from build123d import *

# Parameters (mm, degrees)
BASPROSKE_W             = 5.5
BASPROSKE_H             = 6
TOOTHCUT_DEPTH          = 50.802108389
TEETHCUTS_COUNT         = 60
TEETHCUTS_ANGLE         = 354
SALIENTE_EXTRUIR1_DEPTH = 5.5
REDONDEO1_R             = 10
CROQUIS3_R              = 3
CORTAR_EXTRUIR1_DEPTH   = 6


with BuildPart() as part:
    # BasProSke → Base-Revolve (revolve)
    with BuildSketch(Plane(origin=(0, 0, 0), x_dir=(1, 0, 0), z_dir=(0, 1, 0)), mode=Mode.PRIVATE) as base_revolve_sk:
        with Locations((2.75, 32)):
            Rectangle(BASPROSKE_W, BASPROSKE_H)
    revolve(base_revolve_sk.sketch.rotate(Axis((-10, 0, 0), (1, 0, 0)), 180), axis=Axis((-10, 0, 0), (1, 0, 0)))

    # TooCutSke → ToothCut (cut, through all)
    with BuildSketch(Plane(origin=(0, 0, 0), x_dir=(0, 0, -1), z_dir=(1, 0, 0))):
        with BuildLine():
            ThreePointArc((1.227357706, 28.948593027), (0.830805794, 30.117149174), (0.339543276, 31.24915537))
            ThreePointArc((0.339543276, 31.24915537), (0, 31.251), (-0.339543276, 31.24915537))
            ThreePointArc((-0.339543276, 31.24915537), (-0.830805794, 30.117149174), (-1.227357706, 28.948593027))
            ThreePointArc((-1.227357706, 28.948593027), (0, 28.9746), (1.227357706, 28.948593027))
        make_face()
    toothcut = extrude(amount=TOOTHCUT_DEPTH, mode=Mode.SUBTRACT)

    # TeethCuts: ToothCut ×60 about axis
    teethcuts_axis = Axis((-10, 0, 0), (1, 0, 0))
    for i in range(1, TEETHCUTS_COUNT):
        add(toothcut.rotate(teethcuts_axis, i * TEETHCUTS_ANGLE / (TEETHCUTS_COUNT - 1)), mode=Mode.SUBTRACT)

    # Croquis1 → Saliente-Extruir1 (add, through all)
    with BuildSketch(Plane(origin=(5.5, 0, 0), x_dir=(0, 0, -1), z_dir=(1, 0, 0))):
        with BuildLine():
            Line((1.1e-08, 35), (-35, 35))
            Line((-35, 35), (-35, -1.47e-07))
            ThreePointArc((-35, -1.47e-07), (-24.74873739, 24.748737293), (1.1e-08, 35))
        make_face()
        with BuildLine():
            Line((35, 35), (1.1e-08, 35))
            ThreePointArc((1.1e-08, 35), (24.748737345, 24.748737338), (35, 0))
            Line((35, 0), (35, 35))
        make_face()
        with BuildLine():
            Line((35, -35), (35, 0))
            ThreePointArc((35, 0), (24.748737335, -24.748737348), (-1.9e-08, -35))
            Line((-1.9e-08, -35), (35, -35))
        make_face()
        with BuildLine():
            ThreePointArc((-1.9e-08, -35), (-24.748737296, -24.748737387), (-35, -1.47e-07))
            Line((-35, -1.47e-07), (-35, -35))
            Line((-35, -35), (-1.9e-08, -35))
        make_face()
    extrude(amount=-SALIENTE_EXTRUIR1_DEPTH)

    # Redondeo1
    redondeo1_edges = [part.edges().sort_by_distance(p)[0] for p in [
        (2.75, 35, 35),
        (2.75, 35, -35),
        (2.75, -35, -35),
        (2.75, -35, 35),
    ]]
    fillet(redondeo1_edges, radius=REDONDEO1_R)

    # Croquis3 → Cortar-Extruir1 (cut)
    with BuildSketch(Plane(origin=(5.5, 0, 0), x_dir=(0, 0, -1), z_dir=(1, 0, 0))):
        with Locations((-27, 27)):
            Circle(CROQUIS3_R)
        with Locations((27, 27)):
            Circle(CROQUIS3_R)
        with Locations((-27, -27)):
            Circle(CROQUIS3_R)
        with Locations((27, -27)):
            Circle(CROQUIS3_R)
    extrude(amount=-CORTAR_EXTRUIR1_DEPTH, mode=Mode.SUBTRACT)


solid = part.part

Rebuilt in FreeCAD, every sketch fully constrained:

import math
import FreeCAD as App
import Part
import Sketcher
Q = App.Units.Quantity


def edges_at(feature, points):
    """Names of the edges that pass closest to the given points."""
    edges = feature.Shape.Edges
    near = lambda p: min(range(len(edges)), key=lambda i: edges[i].distToShape(Part.Vertex(*p))[0])
    return sorted({f"Edge{near(p) + 1}" for p in points})


def add_polygon(sketch, points):
    """Adds a closed chain of lines whose ends are joined by coincident constraints."""
    first, n = sketch.GeometryCount, len(points)
    for a, b in zip(points, points[1:] + points[:1]):
        sketch.addGeometry(Part.LineSegment(App.Vector(*a, 0), App.Vector(*b, 0)), False)
    for i in range(n):
        sketch.addConstraint(Sketcher.Constraint("Coincident", first + i, 2, first + (i + 1) % n, 1))

doc = App.newDocument("Part")
body = doc.addObject("PartDesign::Body", "Body")

# Sketch on XZ plane
sketch1 = body.newObject("Sketcher::SketchObject", "Sketch")
sketch1.AttachmentSupport = (doc.getObject("XZ_Plane"), [""])
sketch1.MapMode = "FlatFace"
add_polygon(sketch1, [(0, -35), (0, -29), (6, -29), (6, -35)])  # lines 0-3
sketch1.addConstraint(Sketcher.Constraint("Vertical", 0))
sketch1.addConstraint(Sketcher.Constraint("Horizontal", 1))
sketch1.addConstraint(Sketcher.Constraint("Vertical", 2))
sketch1.addConstraint(Sketcher.Constraint("Horizontal", 3))
sketch1.addConstraint(Sketcher.Constraint("PointOnObject", 0, 2, -2))
sketch1.addConstraint(Sketcher.Constraint("DistanceY", 0, 1, 0, 2, Q("6 mm")))
sketch1.addConstraint(Sketcher.Constraint("DistanceX", 1, 1, 1, 2, Q("5.5 mm")))
sketch1.addConstraint(Sketcher.Constraint("DistanceY", 0, 2, -1, 1, Q("29 mm")))
revolution = body.newObject("PartDesign::Revolution", "Revolution")
revolution.Profile = sketch1
revolution.ReferenceAxis = (sketch1, ["H_Axis"])
revolution.Angle = 360

# Sketch on YZ plane
sketch2 = body.newObject("Sketcher::SketchObject", "Sketch001")
sketch2.AttachmentSupport = (doc.getObject("YZ_Plane"), [""])
sketch2.MapMode = "FlatFace"
sketch2.addGeometry(Part.ArcOfCircle(Part.Circle(App.Vector(24.7, 13.2, 0), App.Vector(0, 0, 1), 15), math.radians(-73.61), math.radians(-64.18)), False)
sketch2.addGeometry(Part.ArcOfCircle(Part.Circle(App.Vector(0, 0, 0), App.Vector(0, 0, 1), 31.3), math.radians(-0.62), math.radians(0.62)), False)
sketch2.addGeometry(Part.ArcOfCircle(Part.Circle(App.Vector(24.7, -13.2, 0), App.Vector(0, 0, 1), 15), math.radians(64.18), math.radians(73.61)), False)
sketch2.addGeometry(Part.ArcOfCircle(Part.Circle(App.Vector(0, 0, 0), App.Vector(0, 0, 1), 29), math.radians(-2.43), math.radians(2.43)), False)
sketch2.addConstraint(Sketcher.Constraint("Coincident", 0, 2, 1, 1))
sketch2.addConstraint(Sketcher.Constraint("Coincident", 1, 2, 2, 1))
sketch2.addConstraint(Sketcher.Constraint("Coincident", 2, 2, 3, 2))
sketch2.addConstraint(Sketcher.Constraint("Coincident", 3, 1, 0, 1))
sketch2.addConstraint(Sketcher.Constraint("Coincident", 1, 3, -1, 1))
sketch2.addConstraint(Sketcher.Constraint("Coincident", 3, 3, -1, 1))
sketch2.addConstraint(Sketcher.Constraint("Equal", 0, 2))
sketch2.addConstraint(Sketcher.Constraint("Symmetric", 0, 3, 2, 3, -1))
sketch2.addConstraint(Sketcher.Constraint("Radius", 0, Q("15 mm")))
sketch2.addConstraint(Sketcher.Constraint("Radius", 3, Q("28.9746 mm")))
sketch2.addConstraint(Sketcher.Constraint("Radius", 1, Q("31.250993 mm")))
sketch2.addConstraint(Sketcher.Constraint("DistanceY", 0, 2, 2, 2, Q("1.566901 mm")))
sketch2.addConstraint(Sketcher.Constraint("DistanceX", -1, 1, 0, 3, Q("24.716661 mm")))
pocket1 = body.newObject("PartDesign::Pocket", "Pocket")
pocket1.Profile = sketch2
pocket1.Type = "ThroughAll"
pocket1.Reversed = True
doc.recompute()

polarpattern = body.newObject("PartDesign::PolarPattern", "PolarPattern")
polarpattern.Originals = [pocket1]
polarpattern.Axis = (doc.getObject("X_Axis"), [""])
polarpattern.Angle = 360
polarpattern.Occurrences = 60
body.Tip = polarpattern

# Sketch on YZ plane
sketch3 = body.newObject("Sketcher::SketchObject", "Sketch002")
sketch3.AttachmentSupport = (doc.getObject("YZ_Plane"), [""])
sketch3.MapMode = "FlatFace"
sketch3.AttachmentOffset = App.Placement(App.Vector(0, 0, 5.5), App.Rotation())
sketch3.addGeometry(Part.LineSegment(App.Vector(35, 0, 0), App.Vector(35, 35, 0)), False)
sketch3.addGeometry(Part.LineSegment(App.Vector(35, 35, 0), App.Vector(0, 35, 0)), False)
sketch3.addGeometry(Part.ArcOfCircle(Part.Circle(App.Vector(0, 0, 0), App.Vector(0, 0, 1), 35), math.radians(0), math.radians(90)), False)
sketch3.addGeometry(Part.LineSegment(App.Vector(35, -35, 0), App.Vector(35, 0, 0)), False)
sketch3.addGeometry(Part.ArcOfCircle(Part.Circle(App.Vector(0, 0, 0), App.Vector(0, 0, 1), 35), math.radians(-90), math.radians(0)), False)
sketch3.addGeometry(Part.LineSegment(App.Vector(0, -35, 0), App.Vector(35, -35, 0)), False)
sketch3.addGeometry(Part.LineSegment(App.Vector(-35, -35, 0), App.Vector(0, -35, 0)), False)
sketch3.addGeometry(Part.ArcOfCircle(Part.Circle(App.Vector(0, 0, 0), App.Vector(0, 0, 1), 35), math.radians(180), math.radians(270)), False)
sketch3.addGeometry(Part.LineSegment(App.Vector(-35, 0, 0), App.Vector(-35, -35, 0)), False)
sketch3.addGeometry(Part.ArcOfCircle(Part.Circle(App.Vector(0, 0, 0), App.Vector(0, 0, 1), 35), math.radians(90), math.radians(180)), False)
sketch3.addGeometry(Part.LineSegment(App.Vector(0, 35, 0), App.Vector(-35, 35, 0)), False)
sketch3.addGeometry(Part.LineSegment(App.Vector(-35, 35, 0), App.Vector(-35, 0, 0)), False)
sketch3.addConstraint(Sketcher.Constraint("Coincident", 0, 2, 1, 1))
sketch3.addConstraint(Sketcher.Constraint("Tangent", 1, 2, 2, 2))
sketch3.addConstraint(Sketcher.Constraint("Tangent", 2, 1, 0, 1))
sketch3.addConstraint(Sketcher.Constraint("Tangent", 3, 2, 4, 2))
sketch3.addConstraint(Sketcher.Constraint("Tangent", 4, 1, 5, 1))
sketch3.addConstraint(Sketcher.Constraint("Coincident", 5, 2, 3, 1))
sketch3.addConstraint(Sketcher.Constraint("Tangent", 6, 2, 7, 2))
sketch3.addConstraint(Sketcher.Constraint("Tangent", 7, 1, 8, 1))
sketch3.addConstraint(Sketcher.Constraint("Coincident", 8, 2, 6, 1))
sketch3.addConstraint(Sketcher.Constraint("Tangent", 9, 1, 10, 1))
sketch3.addConstraint(Sketcher.Constraint("Coincident", 10, 2, 11, 1))
sketch3.addConstraint(Sketcher.Constraint("Tangent", 11, 2, 9, 2))
sketch3.addConstraint(Sketcher.Constraint("Vertical", 0))
sketch3.addConstraint(Sketcher.Constraint("Horizontal", 1))
sketch3.addConstraint(Sketcher.Constraint("Vertical", 3))
sketch3.addConstraint(Sketcher.Constraint("Horizontal", 5))
sketch3.addConstraint(Sketcher.Constraint("Horizontal", 6))
sketch3.addConstraint(Sketcher.Constraint("Vertical", 8))
sketch3.addConstraint(Sketcher.Constraint("Horizontal", 10))
sketch3.addConstraint(Sketcher.Constraint("Vertical", 11))
sketch3.addConstraint(Sketcher.Constraint("Coincident", 2, 3, -1, 1))
sketch3.addConstraint(Sketcher.Constraint("Coincident", 4, 3, -1, 1))
sketch3.addConstraint(Sketcher.Constraint("Coincident", 7, 3, -1, 1))
sketch3.addConstraint(Sketcher.Constraint("Coincident", 9, 3, -1, 1))
sketch3.addConstraint(Sketcher.Constraint("Equal", 2, 4))
sketch3.addConstraint(Sketcher.Constraint("Equal", 4, 7))
sketch3.addConstraint(Sketcher.Constraint("Equal", 7, 9))
sketch3.addConstraint(Sketcher.Constraint("Radius", 2, Q("35 mm")))
pad1 = body.newObject("PartDesign::Pad", "Pad")
pad1.Profile = sketch3
pad1.Length = 5.5
pad1.Reversed = True
doc.recompute()

fillet = body.newObject("PartDesign::Fillet", "Fillet")
fillet.Base = (pad1, edges_at(pad1, [
    (2.75, 35, 35),
    (2.75, 35, -35),
    (2.75, -35, -35),
    (2.75, -35, 35),
]))
fillet.Radius = 10

# Sketch on YZ plane
sketch4 = body.newObject("Sketcher::SketchObject", "Sketch003")
sketch4.AttachmentSupport = (doc.getObject("YZ_Plane"), [""])
sketch4.MapMode = "FlatFace"
sketch4.AttachmentOffset = App.Placement(App.Vector(0, 0, 5.5), App.Rotation())
sketch4.addGeometry(Part.Circle(App.Vector(27, 27, 0), App.Vector(0, 0, 1), 3), False)
sketch4.addGeometry(Part.Circle(App.Vector(27, -27, 0), App.Vector(0, 0, 1), 3), False)
sketch4.addGeometry(Part.Circle(App.Vector(-27, 27, 0), App.Vector(0, 0, 1), 3), False)
sketch4.addGeometry(Part.Circle(App.Vector(-27, -27, 0), App.Vector(0, 0, 1), 3), False)
sketch4.addConstraint(Sketcher.Constraint("Equal", 0, 1))
sketch4.addConstraint(Sketcher.Constraint("Equal", 1, 2))
sketch4.addConstraint(Sketcher.Constraint("Equal", 2, 3))
sketch4.addConstraint(Sketcher.Constraint("Symmetric", 1, 3, 2, 3, -1, 1))
sketch4.addConstraint(Sketcher.Constraint("Symmetric", 0, 3, 3, 3, -1, 1))
sketch4.addConstraint(Sketcher.Constraint("Symmetric", 0, 3, 2, 3, -2))
sketch4.addConstraint(Sketcher.Constraint("Diameter", 0, Q("6 mm")))
sketch4.addConstraint(Sketcher.Constraint("DistanceX", -1, 1, 0, 3, Q("27 mm")))
sketch4.addConstraint(Sketcher.Constraint("DistanceY", -1, 1, 0, 3, Q("27 mm")))
pocket2 = body.newObject("PartDesign::Pocket", "Pocket001")
pocket2.Profile = sketch4
pocket2.Length = 6

doc.recompute()
